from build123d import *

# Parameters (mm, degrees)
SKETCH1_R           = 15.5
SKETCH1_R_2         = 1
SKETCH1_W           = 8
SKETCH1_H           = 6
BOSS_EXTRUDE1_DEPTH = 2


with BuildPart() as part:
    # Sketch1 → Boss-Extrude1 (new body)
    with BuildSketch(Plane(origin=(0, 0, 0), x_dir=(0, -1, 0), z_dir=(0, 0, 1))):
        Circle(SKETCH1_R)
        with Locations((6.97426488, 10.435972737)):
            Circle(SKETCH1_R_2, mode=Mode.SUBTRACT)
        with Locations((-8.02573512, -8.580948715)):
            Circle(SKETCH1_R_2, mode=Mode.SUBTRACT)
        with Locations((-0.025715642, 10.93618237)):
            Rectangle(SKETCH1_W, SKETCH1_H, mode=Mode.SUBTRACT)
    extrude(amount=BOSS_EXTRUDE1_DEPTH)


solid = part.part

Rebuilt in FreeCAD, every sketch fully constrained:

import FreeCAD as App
import Part
import Sketcher
Q = App.Units.Quantity


def add_polygon(sketch, points):
    """Adds a closed chain of lines whose ends are joined by coincident constraints."""
    first, n = sketch.GeometryCount, len(points)
    for a, b in zip(points, points[1:] + points[:1]):
        sketch.addGeometry(Part.LineSegment(App.Vector(*a, 0), App.Vector(*b, 0)), False)
    for i in range(n):
        sketch.addConstraint(Sketcher.Constraint("Coincident", first + i, 2, first + (i + 1) % n, 1))

doc = App.newDocument("Part")
body = doc.addObject("PartDesign::Body", "Body")

# Sketch on XY plane
sketch1 = doc.addObject("Sketcher::SketchObject", "Sketch")
body.addObject(sketch1)
sketch1.AttachmentSupport = (doc.XY_Plane, [""])
sketch1.MapMode = "FlatFace"
sketch1.addGeometry(Part.Circle(App.Vector(0, 0, 0), App.Vector(0, 0, 1), 15.5), False)  # 0
sketch1.addGeometry(Part.Circle(App.Vector(-8.6, 8, 0), App.Vector(0, 0, 1), 1), False)  # 1
add_polygon(sketch1, [(7.9, -4), (7.9, 4), (13.9, 4), (13.9, -4)])  # lines 2-5
sketch1.addGeometry(Part.Circle(App.Vector(10.4, -7, 0), App.Vector(0, 0, 1), 1), False)  # 6
sketch1.addConstraint([
    Sketcher.Constraint("Vertical", 2),
    Sketcher.Constraint("Horizontal", 3),
    Sketcher.Constraint("Vertical", 4),
    Sketcher.Constraint("Horizontal", 5),
    Sketcher.Constraint("Coincident", 0, 3, -1, 1),
    Sketcher.Constraint("Equal", 1, 6),
    Sketcher.Constraint("Diameter", 0, Q("31 mm")),
    Sketcher.Constraint("Diameter", 1, Q("2 mm")),
    Sketcher.Constraint("DistanceX", 3, 1, 3, 2, Q("6 mm")),
    Sketcher.Constraint("DistanceY", 2, 1, 2, 2, Q("8 mm")),
    Sketcher.Constraint("DistanceY", 6, 3, 1, 3, Q("15 mm")),
    Sketcher.Constraint("DistanceX", 1, 3, -1, 1, Q("8.580949 mm")),
    Sketcher.Constraint("DistanceX", 1, 3, 6, 3, Q("19.016921 mm")),
    Sketcher.Constraint("DistanceX", 2, 2, 6, 3, Q("2.49979 mm")),
    Sketcher.Constraint("DistanceY", 6, 3, 2, 2, Q("10.999981 mm")),
    Sketcher.Constraint("DistanceY", -1, 1, 1, 3, Q("8.025735 mm")),
])
pad1 = doc.addObject("PartDesign::Pad", "Pad")
body.addObject(pad1)
pad1.Profile = sketch1
pad1.Length = 2

doc.recompute()
